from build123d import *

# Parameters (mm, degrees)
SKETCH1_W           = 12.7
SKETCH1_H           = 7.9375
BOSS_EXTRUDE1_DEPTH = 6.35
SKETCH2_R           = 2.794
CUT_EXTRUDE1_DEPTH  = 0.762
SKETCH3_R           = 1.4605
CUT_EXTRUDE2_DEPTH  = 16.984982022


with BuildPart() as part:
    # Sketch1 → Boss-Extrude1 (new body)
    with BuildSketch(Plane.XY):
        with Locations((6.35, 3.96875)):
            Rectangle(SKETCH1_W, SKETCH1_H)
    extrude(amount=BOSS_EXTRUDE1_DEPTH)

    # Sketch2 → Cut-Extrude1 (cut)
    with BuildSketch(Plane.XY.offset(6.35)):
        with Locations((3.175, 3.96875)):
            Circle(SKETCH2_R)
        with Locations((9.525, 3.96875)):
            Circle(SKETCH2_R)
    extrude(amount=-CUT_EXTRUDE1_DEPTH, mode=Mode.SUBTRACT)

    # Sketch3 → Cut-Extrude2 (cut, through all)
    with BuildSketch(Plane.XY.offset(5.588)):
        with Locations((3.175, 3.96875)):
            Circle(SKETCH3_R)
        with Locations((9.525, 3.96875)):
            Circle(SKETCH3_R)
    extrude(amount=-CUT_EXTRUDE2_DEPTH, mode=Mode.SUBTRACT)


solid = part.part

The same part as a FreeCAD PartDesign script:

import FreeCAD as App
import Part
import Sketcher

V = App.Vector
Q = App.Units.Quantity


def add_polygon(sketch, points):
    """Adds a closed chain of lines whose ends are joined by coincident constraints."""
    first, n = sketch.GeometryCount, len(points)
    for a, b in zip(points, points[1:] + points[:1]):
        sketch.addGeometry(Part.LineSegment(App.Vector(*a, 0), App.Vector(*b, 0)), False)
    for i in range(n):
        sketch.addConstraint(Sketcher.Constraint("Coincident", first + i, 2, first + (i + 1) % n, 1))

doc = App.newDocument("Part")
body = doc.addObject("PartDesign::Body", "Body")

# Sketch on XY plane
sketch1 = doc.addObject("Sketcher::SketchObject", "Sketch")
body.addObject(sketch1)
sketch1.AttachmentSupport = (doc.XY_Plane, [""])
sketch1.MapMode = "FlatFace"
add_polygon(sketch1, [(0, 8), (0, 0), (13, 0), (13, 8)])  # lines 0-3
sketch1.addConstraint(Sketcher.Constraint("Vertical", 0))
sketch1.addConstraint(Sketcher.Constraint("Horizontal", 1))
sketch1.addConstraint(Sketcher.Constraint("Vertical", 2))
sketch1.addConstraint(Sketcher.Constraint("Horizontal", 3))
sketch1.addConstraint(Sketcher.Constraint("Coincident", 0, 2, -1, 1))
sketch1.addConstraint(Sketcher.Constraint("DistanceX", 1, 1, 1, 2, Q("0.5 in")))
sketch1.addConstraint(Sketcher.Constraint("DistanceY", 0, 2, 0, 1, Q("0.3125 in")))
pad1 = doc.addObject("PartDesign::Pad", "Pad")
body.addObject(pad1)
pad1.Profile = sketch1
pad1.Length = Q("0.25 in")

# Sketch on XY plane
sketch2 = doc.addObject("Sketcher::SketchObject", "Sketch001")
body.addObject(sketch2)
sketch2.AttachmentSupport = (doc.XY_Plane, [""])
sketch2.MapMode = "FlatFace"
sketch2.AttachmentOffset = App.Placement(V(0, 0, 0.25 * 25.4), App.Rotation())
sketch2.addGeometry(Part.Circle(V(3.2, 4, 0), V(0, 0, 1), 2.8), False)
sketch2.addGeometry(Part.Circle(V(9.5, 4, 0), V(0, 0, 1), 2.8), False)
sketch2.addConstraint(Sketcher.Constraint("Equal", 0, 1))
sketch2.addConstraint(Sketcher.Constraint("Horizontal", 0, 3, 1, 3))
sketch2.addConstraint(Sketcher.Constraint("Diameter", 0, Q("0.22 in")))
sketch2.addConstraint(Sketcher.Constraint("DistanceX", 0, 3, 1, 3, Q("0.25 in")))
sketch2.addConstraint(Sketcher.Constraint("DistanceX", -1, 1, 0, 3, Q("0.125 in")))
sketch2.addConstraint(Sketcher.Constraint("DistanceY", -1, 1, 0, 3, Q("0.15625 in")))
pocket1 = doc.addObject("PartDesign::Pocket", "Pocket")
body.addObject(pocket1)
pocket1.Profile = sketch2
pocket1.Length = Q("0.03 in")

# Sketch on XY plane
sketch3 = doc.addObject("Sketcher::SketchObject", "Sketch002")
body.addObject(sketch3)
sketch3.AttachmentSupport = (doc.XY_Plane, [""])
sketch3.MapMode = "FlatFace"
sketch3.AttachmentOffset = App.Placement(V(0, 0, 0.22 * 25.4), App.Rotation())
sketch3.addGeometry(Part.Circle(V(3.2, 4, 0), V(0, 0, 1), 1.5), False)
sketch3.addGeometry(Part.Circle(V(9.5, 4, 0), V(0, 0, 1), 1.5), False)
sketch3.addConstraint(Sketcher.Constraint("Equal", 0, 1))
sketch3.addConstraint(Sketcher.Constraint("Horizontal", 0, 3, 1, 3))
sketch3.addConstraint(Sketcher.Constraint("Diameter", 0, Q("0.115 in")))
sketch3.addConstraint(Sketcher.Constraint("DistanceX", 0, 3, 1, 3, Q("0.25 in")))
sketch3.addConstraint(Sketcher.Constraint("DistanceX", -1, 1, 0, 3, Q("0.125 in")))
sketch3.addConstraint(Sketcher.Constraint("DistanceY", -1, 1, 0, 3, Q("0.15625 in")))
pocket2 = doc.addObject("PartDesign::Pocket", "Pocket001")
body.addObject(pocket2)
pocket2.Profile = sketch3
pocket2.Type = "ThroughAll"

doc.recompute()
